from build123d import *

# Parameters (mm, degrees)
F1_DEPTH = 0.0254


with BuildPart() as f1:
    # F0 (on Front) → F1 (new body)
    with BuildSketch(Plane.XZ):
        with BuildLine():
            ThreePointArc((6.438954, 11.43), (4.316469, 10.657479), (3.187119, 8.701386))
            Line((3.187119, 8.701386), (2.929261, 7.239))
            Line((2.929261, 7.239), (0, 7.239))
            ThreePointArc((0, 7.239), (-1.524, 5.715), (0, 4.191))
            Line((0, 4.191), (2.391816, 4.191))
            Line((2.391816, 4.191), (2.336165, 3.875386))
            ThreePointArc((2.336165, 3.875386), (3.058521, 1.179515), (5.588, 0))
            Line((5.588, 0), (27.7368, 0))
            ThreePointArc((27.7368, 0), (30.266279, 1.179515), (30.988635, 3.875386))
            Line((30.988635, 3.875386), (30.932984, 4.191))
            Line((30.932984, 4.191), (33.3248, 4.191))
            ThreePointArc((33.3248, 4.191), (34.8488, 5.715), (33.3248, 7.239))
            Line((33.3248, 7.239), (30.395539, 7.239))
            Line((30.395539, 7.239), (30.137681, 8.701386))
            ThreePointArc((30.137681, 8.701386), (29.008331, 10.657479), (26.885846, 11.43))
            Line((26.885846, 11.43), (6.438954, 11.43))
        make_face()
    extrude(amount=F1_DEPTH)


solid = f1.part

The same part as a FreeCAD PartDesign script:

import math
import FreeCAD as App
import Part
import Sketcher
from FreeCAD import Vector
Q = App.Units.Quantity

doc = App.newDocument("Part")
body = doc.addObject("PartDesign::Body", "Body")

sketch1 = doc.addObject("Sketcher::SketchObject", "Sketch")
body.addObject(sketch1)
sketch1.AttachmentSupport = (doc.XZ_Plane, [""])
sketch1.MapMode = "FlatFace"
sketch1.addGeometry([
    Part.ArcOfCircle(Part.Circle(Vector(6.44, 8.13, 0), Vector(0, 0, 1), 3.3), math.radians(90), math.radians(170)),
    Part.LineSegment(Vector(3.19, 8.7, 0), Vector(2.93, 7.24, 0)),
    Part.LineSegment(Vector(2.93, 7.24, 0), Vector(0, 7.24, 0)),
    Part.ArcOfCircle(Part.Circle(Vector(0, 5.71, 0), Vector(0, 0, 1), 1.52), math.radians(90), math.radians(270)),
    Part.LineSegment(Vector(0, 4.19, 0), Vector(2.39, 4.19, 0)),
    Part.LineSegment(Vector(2.39, 4.19, 0), Vector(2.34, 3.88, 0)),
    Part.ArcOfCircle(Part.Circle(Vector(5.59, 3.3, 0), Vector(0, 0, 1), 3.3), math.radians(170), math.radians(270)),
    Part.LineSegment(Vector(5.59, 0, 0), Vector(27.74, 0, 0)),
    Part.ArcOfCircle(Part.Circle(Vector(27.74, 3.3, 0), Vector(0, 0, 1), 3.3), math.radians(-90), math.radians(10)),
    Part.LineSegment(Vector(30.99, 3.88, 0), Vector(30.93, 4.19, 0)),
    Part.LineSegment(Vector(30.93, 4.19, 0), Vector(33.32, 4.19, 0)),
    Part.ArcOfCircle(Part.Circle(Vector(33.32, 5.71, 0), Vector(0, 0, 1), 1.52), math.radians(-90), math.radians(90)),
    Part.LineSegment(Vector(33.32, 7.24, 0), Vector(30.4, 7.24, 0)),
    Part.LineSegment(Vector(30.4, 7.24, 0), Vector(30.14, 8.7, 0)),
    Part.ArcOfCircle(Part.Circle(Vector(26.89, 8.13, 0), Vector(0, 0, 1), 3.3), math.radians(10), math.radians(90)),
    Part.LineSegment(Vector(26.89, 11.43, 0), Vector(6.44, 11.43, 0)),
], False)
sketch1.addConstraint([
    Sketcher.Constraint("Tangent", 0, 2, 1, 1),
    Sketcher.Constraint("Coincident", 1, 2, 2, 1),
    Sketcher.Constraint("Tangent", 2, 2, 3, 1),
    Sketcher.Constraint("Tangent", 3, 2, 4, 1),
    Sketcher.Constraint("Coincident", 4, 2, 5, 1),
    Sketcher.Constraint("Tangent", 5, 2, 6, 1),
    Sketcher.Constraint("Tangent", 6, 2, 7, 1),
    Sketcher.Constraint("Tangent", 7, 2, 8, 1),
    Sketcher.Constraint("Tangent", 8, 2, 9, 1),
    Sketcher.Constraint("Coincident", 9, 2, 10, 1),
    Sketcher.Constraint("Tangent", 10, 2, 11, 1),
    Sketcher.Constraint("Tangent", 11, 2, 12, 1),
    Sketcher.Constraint("Coincident", 12, 2, 13, 1),
    Sketcher.Constraint("Tangent", 13, 2, 14, 1),
    Sketcher.Constraint("Tangent", 14, 2, 15, 1),
    Sketcher.Constraint("Tangent", 15, 2, 0, 1),
    Sketcher.Constraint("Horizontal", 2),
    Sketcher.Constraint("Horizontal", 4),
    Sketcher.Constraint("Horizontal", 7),
    Sketcher.Constraint("Horizontal", 10),
    Sketcher.Constraint("Horizontal", 12),
    Sketcher.Constraint("Horizontal", 15),
    Sketcher.Constraint("Equal", 0, 6),
    Sketcher.Constraint("Equal", 6, 8),
    Sketcher.Constraint("Equal", 3, 11),
    Sketcher.Constraint("Equal", 8, 14),
    Sketcher.Constraint("PointOnObject", 3, 3, -2),
    Sketcher.Constraint("PointOnObject", 6, 2, -1),
    Sketcher.Constraint("Parallel", 1, 5),
    Sketcher.Constraint("Parallel", 9, 13),
    Sketcher.Constraint("Horizontal", 3, 3, 11, 3),
    Sketcher.Constraint("Horizontal", 5, 2, 8, 2),
    Sketcher.Constraint("Equal", 4, 10),
    Sketcher.Constraint("Equal", 2, 12),
    Sketcher.Constraint("Radius", 0, Q("0.1299999 in")),
    Sketcher.Constraint("Radius", 3, Q("0.06 in")),
    Sketcher.Constraint("Angle", 1, Q("-99.999996 deg")),
    Sketcher.Constraint("DistanceX", 7, 1, 7, 2, Q("0.872 in")),
    Sketcher.Constraint("DistanceY", -1, 1, 0, 3, Q("0.3200001 in")),
    Sketcher.Constraint("DistanceX", -1, 1, 6, 3, Q("0.22 in")),
    Sketcher.Constraint("DistanceY", -1, 1, 3, 3, Q("0.225 in")),
    Sketcher.Constraint("DistanceX", 2, 2, 2, 1, 2.929261),
])
pad1 = doc.addObject("PartDesign::Pad", "Pad")
body.addObject(pad1)
pad1.Profile = sketch1
pad1.Length = Q("0.001 in")

doc.recompute()
